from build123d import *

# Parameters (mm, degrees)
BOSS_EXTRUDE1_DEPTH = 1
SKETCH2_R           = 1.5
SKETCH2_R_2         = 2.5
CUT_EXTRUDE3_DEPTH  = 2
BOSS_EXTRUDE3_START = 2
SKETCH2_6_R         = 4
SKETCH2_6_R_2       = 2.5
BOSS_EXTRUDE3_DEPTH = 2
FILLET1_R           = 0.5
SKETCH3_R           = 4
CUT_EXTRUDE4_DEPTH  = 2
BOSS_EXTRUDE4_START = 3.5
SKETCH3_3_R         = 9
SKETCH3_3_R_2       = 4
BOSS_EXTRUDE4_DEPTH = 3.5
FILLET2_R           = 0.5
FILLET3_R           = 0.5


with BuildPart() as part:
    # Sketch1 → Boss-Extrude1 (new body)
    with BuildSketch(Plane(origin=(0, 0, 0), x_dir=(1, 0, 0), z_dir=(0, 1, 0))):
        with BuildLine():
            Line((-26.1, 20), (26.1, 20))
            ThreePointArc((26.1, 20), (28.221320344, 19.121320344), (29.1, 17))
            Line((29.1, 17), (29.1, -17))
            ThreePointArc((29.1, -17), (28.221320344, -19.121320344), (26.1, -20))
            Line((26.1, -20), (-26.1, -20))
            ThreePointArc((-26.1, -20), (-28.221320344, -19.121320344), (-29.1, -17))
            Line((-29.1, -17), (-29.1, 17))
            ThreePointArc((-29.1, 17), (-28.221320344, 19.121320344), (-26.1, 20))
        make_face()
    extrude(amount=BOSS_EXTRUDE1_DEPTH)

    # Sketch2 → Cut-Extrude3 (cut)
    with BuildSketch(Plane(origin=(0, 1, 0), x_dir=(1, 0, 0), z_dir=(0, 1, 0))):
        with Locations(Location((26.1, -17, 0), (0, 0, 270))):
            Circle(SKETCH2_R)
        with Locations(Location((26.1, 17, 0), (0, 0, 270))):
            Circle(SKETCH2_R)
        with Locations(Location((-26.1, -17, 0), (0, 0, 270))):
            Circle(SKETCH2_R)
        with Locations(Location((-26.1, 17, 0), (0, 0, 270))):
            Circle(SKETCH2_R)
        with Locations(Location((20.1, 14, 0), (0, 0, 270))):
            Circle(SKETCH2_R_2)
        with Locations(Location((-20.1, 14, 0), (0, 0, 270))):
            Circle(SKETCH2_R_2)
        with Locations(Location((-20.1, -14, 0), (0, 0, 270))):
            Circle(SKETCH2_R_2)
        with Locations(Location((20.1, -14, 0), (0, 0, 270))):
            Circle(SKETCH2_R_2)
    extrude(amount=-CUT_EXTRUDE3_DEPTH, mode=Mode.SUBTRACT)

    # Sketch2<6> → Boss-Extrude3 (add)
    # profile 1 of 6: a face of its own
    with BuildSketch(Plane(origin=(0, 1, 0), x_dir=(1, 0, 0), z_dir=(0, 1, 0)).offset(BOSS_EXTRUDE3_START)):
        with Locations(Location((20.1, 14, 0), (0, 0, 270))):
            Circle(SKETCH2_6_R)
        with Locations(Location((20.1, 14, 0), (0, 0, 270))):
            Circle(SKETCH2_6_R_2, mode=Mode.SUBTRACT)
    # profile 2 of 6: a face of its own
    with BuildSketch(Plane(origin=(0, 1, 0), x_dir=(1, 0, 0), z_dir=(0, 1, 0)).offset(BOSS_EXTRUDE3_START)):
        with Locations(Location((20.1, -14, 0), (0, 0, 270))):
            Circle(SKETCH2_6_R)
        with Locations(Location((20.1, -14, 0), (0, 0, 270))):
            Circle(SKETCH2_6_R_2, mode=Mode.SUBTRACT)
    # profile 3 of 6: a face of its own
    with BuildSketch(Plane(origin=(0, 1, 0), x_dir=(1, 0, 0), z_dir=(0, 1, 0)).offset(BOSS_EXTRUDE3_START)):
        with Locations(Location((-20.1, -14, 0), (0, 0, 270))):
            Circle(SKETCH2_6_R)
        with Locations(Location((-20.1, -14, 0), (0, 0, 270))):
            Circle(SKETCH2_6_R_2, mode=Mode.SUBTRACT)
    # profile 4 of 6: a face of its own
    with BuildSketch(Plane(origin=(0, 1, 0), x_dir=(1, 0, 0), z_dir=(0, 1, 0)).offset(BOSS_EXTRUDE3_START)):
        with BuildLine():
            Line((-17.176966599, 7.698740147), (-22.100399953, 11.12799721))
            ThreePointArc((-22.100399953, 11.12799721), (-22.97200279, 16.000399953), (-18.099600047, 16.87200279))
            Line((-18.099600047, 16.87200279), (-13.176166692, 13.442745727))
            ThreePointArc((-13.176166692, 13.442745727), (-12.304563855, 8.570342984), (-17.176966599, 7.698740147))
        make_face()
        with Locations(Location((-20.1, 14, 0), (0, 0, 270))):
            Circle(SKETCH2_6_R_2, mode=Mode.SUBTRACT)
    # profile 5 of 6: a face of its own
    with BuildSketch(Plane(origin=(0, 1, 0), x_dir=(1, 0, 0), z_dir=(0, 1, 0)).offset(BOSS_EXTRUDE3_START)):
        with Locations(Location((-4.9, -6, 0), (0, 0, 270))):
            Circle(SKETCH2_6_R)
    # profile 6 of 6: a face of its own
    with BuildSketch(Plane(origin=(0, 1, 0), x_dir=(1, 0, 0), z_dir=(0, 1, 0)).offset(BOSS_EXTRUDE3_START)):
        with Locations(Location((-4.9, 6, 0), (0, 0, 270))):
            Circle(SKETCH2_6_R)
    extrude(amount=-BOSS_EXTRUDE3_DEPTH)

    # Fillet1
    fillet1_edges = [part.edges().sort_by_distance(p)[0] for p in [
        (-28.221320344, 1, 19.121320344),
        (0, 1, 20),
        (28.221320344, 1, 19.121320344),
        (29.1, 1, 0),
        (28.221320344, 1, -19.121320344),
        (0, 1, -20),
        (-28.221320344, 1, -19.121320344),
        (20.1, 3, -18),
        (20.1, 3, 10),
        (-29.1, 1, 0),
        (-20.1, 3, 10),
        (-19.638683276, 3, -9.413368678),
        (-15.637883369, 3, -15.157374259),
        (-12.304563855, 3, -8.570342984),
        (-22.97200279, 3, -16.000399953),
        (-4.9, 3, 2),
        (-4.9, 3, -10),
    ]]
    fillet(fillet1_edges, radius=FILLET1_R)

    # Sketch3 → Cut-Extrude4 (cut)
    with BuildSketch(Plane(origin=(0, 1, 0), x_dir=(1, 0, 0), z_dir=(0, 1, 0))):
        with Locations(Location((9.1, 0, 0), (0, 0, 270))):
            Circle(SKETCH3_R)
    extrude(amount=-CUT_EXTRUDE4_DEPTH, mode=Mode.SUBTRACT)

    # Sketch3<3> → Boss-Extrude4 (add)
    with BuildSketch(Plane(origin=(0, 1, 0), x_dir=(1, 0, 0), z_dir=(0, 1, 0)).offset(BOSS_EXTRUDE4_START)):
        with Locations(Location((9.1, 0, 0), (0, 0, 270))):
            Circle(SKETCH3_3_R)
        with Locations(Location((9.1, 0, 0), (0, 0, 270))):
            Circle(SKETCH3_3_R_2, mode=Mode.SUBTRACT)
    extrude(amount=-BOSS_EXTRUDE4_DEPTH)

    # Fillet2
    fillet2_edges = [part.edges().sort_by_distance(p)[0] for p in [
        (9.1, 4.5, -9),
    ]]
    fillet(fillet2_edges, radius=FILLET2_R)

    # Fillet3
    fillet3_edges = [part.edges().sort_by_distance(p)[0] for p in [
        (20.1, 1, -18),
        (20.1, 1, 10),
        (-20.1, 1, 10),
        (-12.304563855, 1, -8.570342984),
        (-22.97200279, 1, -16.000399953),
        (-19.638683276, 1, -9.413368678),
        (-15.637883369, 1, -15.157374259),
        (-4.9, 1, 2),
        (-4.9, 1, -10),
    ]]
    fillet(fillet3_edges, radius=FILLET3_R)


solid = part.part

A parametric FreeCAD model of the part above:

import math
import FreeCAD as App
import Part
import Sketcher
from FreeCAD import Vector


def edges_at(feature, points):
    """Names of the edges that pass closest to the given points."""
    edges = feature.Shape.Edges
    near = lambda p: min(range(len(edges)), key=lambda i: edges[i].distToShape(Part.Vertex(*p))[0])
    return sorted({f"Edge{near(p) + 1}" for p in points})

doc = App.newDocument("Part")
body = doc.addObject("PartDesign::Body", "Body")

# Sketch on XZ plane
sketch1 = body.newObject("Sketcher::SketchObject", "Sketch")
sketch1.AttachmentSupport = (doc.getObject("XZ_Plane"), [""])
sketch1.MapMode = "FlatFace"
sketch1.addGeometry([
    Part.LineSegment(Vector(26.1, -20, 0), Vector(-26.1, -20, 0)),  # 0
    Part.ArcOfCircle(Part.Circle(Vector(-26.1, -17, 0), Vector(0, 0, 1), 3), math.radians(180), math.radians(270)),  # 1
    Part.LineSegment(Vector(-29.1, -17, 0), Vector(-29.1, 17, 0)),  # 2
    Part.ArcOfCircle(Part.Circle(Vector(-26.1, 17, 0), Vector(0, 0, 1), 3), math.radians(90), math.radians(180)),  # 3
    Part.LineSegment(Vector(-26.1, 20, 0), Vector(26.1, 20, 0)),  # 4
    Part.ArcOfCircle(Part.Circle(Vector(26.1, 17, 0), Vector(0, 0, 1), 3), math.radians(0), math.radians(90)),  # 5
    Part.LineSegment(Vector(29.1, 17, 0), Vector(29.1, -17, 0)),  # 6
    Part.ArcOfCircle(Part.Circle(Vector(26.1, -17, 0), Vector(0, 0, 1), 3), math.radians(-90), math.radians(0)),  # 7
], False)
sketch1.addConstraint([
    Sketcher.Constraint("Tangent", 0, 2, 1, 2),
    Sketcher.Constraint("Tangent", 1, 1, 2, 1),
    Sketcher.Constraint("Tangent", 2, 2, 3, 2),
    Sketcher.Constraint("Tangent", 3, 1, 4, 1),
    Sketcher.Constraint("Tangent", 4, 2, 5, 2),
    Sketcher.Constraint("Tangent", 5, 1, 6, 1),
    Sketcher.Constraint("Tangent", 6, 2, 7, 2),
    Sketcher.Constraint("Tangent", 7, 1, 0, 1),
    Sketcher.Constraint("Horizontal", 0),
    Sketcher.Constraint("Vertical", 2),
    Sketcher.Constraint("Horizontal", 4),
    Sketcher.Constraint("Vertical", 6),
    Sketcher.Constraint("Equal", 1, 3),
    Sketcher.Constraint("Equal", 3, 5),
    Sketcher.Constraint("Equal", 5, 7),
    Sketcher.Constraint("Symmetric", 1, 3, 5, 3, -1, 1),
    Sketcher.Constraint("Radius", 1, 3.0),
    Sketcher.Constraint("DistanceY", 2, 1, 2, 2, 34.0),
    Sketcher.Constraint("DistanceX", 0, 2, 0, 1, 52.2),
])
pad1 = body.newObject("PartDesign::Pad", "Pad")
pad1.Profile = sketch1
pad1.Length = 1
pad1.Reversed = True

# Sketch on XZ plane
sketch2 = body.newObject("Sketcher::SketchObject", "Sketch001")
sketch2.AttachmentSupport = (doc.getObject("XZ_Plane"), [""])
sketch2.MapMode = "FlatFace"
sketch2.AttachmentOffset = App.Placement(Vector(0, 0, -1), App.Rotation())
sketch2.addGeometry([
    Part.Circle(Vector(26.1, 17, 0), Vector(0, 0, 1), 1.5),  # 0
    Part.Circle(Vector(26.1, -17, 0), Vector(0, 0, 1), 1.5),  # 1
    Part.Circle(Vector(-26.1, 17, 0), Vector(0, 0, 1), 1.5),  # 2
    Part.Circle(Vector(-26.1, -17, 0), Vector(0, 0, 1), 1.5),  # 3
    Part.Circle(Vector(20.1, -14, 0), Vector(0, 0, 1), 2.5),  # 4
    Part.Circle(Vector(-20.1, -14, 0), Vector(0, 0, 1), 2.5),  # 5
    Part.Circle(Vector(-20.1, 14, 0), Vector(0, 0, 1), 2.5),  # 6
    Part.Circle(Vector(20.1, 14, 0), Vector(0, 0, 1), 2.5),  # 7
], False)
sketch2.addConstraint([
    Sketcher.Constraint("Equal", 0, 1),
    Sketcher.Constraint("Equal", 1, 2),
    Sketcher.Constraint("Equal", 2, 3),
    Sketcher.Constraint("Equal", 4, 5),
    Sketcher.Constraint("Equal", 5, 6),
    Sketcher.Constraint("Equal", 6, 7),
    Sketcher.Constraint("Symmetric", 1, 3, 2, 3, -1, 1),
    Sketcher.Constraint("Symmetric", 0, 3, 3, 3, -1, 1),
    Sketcher.Constraint("Symmetric", 4, 3, 6, 3, -1, 1),
    Sketcher.Constraint("Symmetric", 5, 3, 7, 3, -1, 1),
    Sketcher.Constraint("Symmetric", 0, 3, 2, 3, -2),
    Sketcher.Constraint("Symmetric", 4, 3, 5, 3, -2),
    Sketcher.Constraint("Diameter", 0, 3.0),
    Sketcher.Constraint("Diameter", 4, 5.0),
    Sketcher.Constraint("DistanceY", -1, 1, 0, 3, 17.0),
    Sketcher.Constraint("DistanceY", 4, 3, -1, 1, 14.0),
    Sketcher.Constraint("DistanceX", 4, 3, 1, 3, 6.0),
    Sketcher.Constraint("DistanceX", -1, 1, 0, 3, 26.1),
])
pocket1 = body.newObject("PartDesign::Pocket", "Pocket")
pocket1.Profile = sketch2
pocket1.Length = 2
pocket1.Reversed = True

# Sketch on XZ plane
sketch3 = body.newObject("Sketcher::SketchObject", "Sketch002")
sketch3.AttachmentSupport = (doc.getObject("XZ_Plane"), [""])
sketch3.MapMode = "FlatFace"
sketch3.AttachmentOffset = App.Placement(Vector(0, 0, -3), App.Rotation())
sketch3.addGeometry([
    Part.Circle(Vector(20.1, -14, 0), Vector(0, 0, 1), 4),  # 0
    Part.Circle(Vector(20.1, -14, 0), Vector(0, 0, 1), 2.5),  # 1
    Part.Circle(Vector(20.1, 14, 0), Vector(0, 0, 1), 4),  # 2
    Part.Circle(Vector(20.1, 14, 0), Vector(0, 0, 1), 2.5),  # 3
    Part.Circle(Vector(-20.1, 14, 0), Vector(0, 0, 1), 4),  # 4
    Part.Circle(Vector(-20.1, 14, 0), Vector(0, 0, 1), 2.5),  # 5
    Part.LineSegment(Vector(-22.1, -11.1, 0), Vector(-17.2, -7.7, 0)),  # 6
    Part.ArcOfCircle(Part.Circle(Vector(-15.2, -10.6, 0), Vector(0, 0, 1), 3.5), math.radians(-55), math.radians(125)),  # 7
    Part.LineSegment(Vector(-13.2, -13.4, 0), Vector(-18.1, -16.9, 0)),  # 8
    Part.ArcOfCircle(Part.Circle(Vector(-20.1, -14, 0), Vector(0, 0, 1), 3.5), math.radians(125), math.radians(305)),  # 9
    Part.Circle(Vector(-20.1, -14, 0), Vector(0, 0, 1), 2.5),  # 10
    Part.Circle(Vector(-4.9, 6, 0), Vector(0, 0, 1), 4),  # 11
    Part.Circle(Vector(-4.9, -6, 0), Vector(0, 0, 1), 4),  # 12
], False)
sketch3.addConstraint([
    Sketcher.Constraint("Tangent", 6, 2, 7, 2),
    Sketcher.Constraint("Tangent", 7, 1, 8, 1),
    Sketcher.Constraint("Tangent", 8, 2, 9, 2),
    Sketcher.Constraint("Tangent", 9, 1, 6, 1),
    Sketcher.Constraint("Coincident", 1, 3, 0, 3),
    Sketcher.Constraint("Coincident", 3, 3, 2, 3),
    Sketcher.Constraint("Coincident", 5, 3, 4, 3),
    Sketcher.Constraint("Coincident", 10, 3, 9, 3),
    Sketcher.Constraint("Equal", 0, 2),
    Sketcher.Constraint("Equal", 1, 3),
    Sketcher.Constraint("Equal", 2, 4),
    Sketcher.Constraint("Equal", 3, 5),
    Sketcher.Constraint("Equal", 7, 9),
    Sketcher.Constraint("Equal", 5, 10),
    Sketcher.Constraint("Equal", 4, 11),
    Sketcher.Constraint("Equal", 11, 12),
    Sketcher.Constraint("Symmetric", 0, 3, 4, 3, -1, 1),
    Sketcher.Constraint("Symmetric", 2, 3, 9, 3, -1, 1),
    Sketcher.Constraint("Symmetric", 2, 3, 4, 3, -2),
    Sketcher.Constraint("Symmetric", 11, 3, 12, 3, -1),
    Sketcher.Constraint("Diameter", 0, 8.0),
    Sketcher.Constraint("Diameter", 1, 5.0),
    Sketcher.Constraint("Radius", 7, 3.5),
    Sketcher.Constraint("Distance", 6, 6.0),
    Sketcher.Constraint("DistanceY", 0, 3, -1, 1, 14.0),
    Sketcher.Constraint("DistanceY", -1, 1, 11, 3, 6.0),
    Sketcher.Constraint("DistanceX", -1, 1, 0, 3, 20.1),
    Sketcher.Constraint("DistanceX", 11, 3, -1, 1, 4.9),
    Sketcher.Constraint("DistanceX", 8, 2, -1, 1, 18.0996),
])
pad2 = body.newObject("PartDesign::Pad", "Pad001")
pad2.Profile = sketch3
pad2.Length = 2
doc.recompute()

fillet = body.newObject("PartDesign::Fillet", "Fillet")
fillet.Base = (pad2, edges_at(pad2, [
    (-28.221, 1, 19.121),
    (0, 1, 20),
    (28.221, 1, 19.121),
    (29.1, 1, 0),
    (28.221, 1, -19.121),
    (0, 1, -20),
    (-28.221, 1, -19.121),
    (20.1, 3, -18),
    (20.1, 3, 10),
    (-29.1, 1, 0),
    (-20.1, 3, 10),
    (-19.639, 3, -9.413),
    (-15.638, 3, -15.157),
    (-12.305, 3, -8.57),
    (-22.972, 3, -16),
    (-4.9, 3, 2),
    (-4.9, 3, -10),
]))
fillet.Radius = 0.5

# Sketch on XZ plane
sketch4 = body.newObject("Sketcher::SketchObject", "Sketch003")
sketch4.AttachmentSupport = (doc.getObject("XZ_Plane"), [""])
sketch4.MapMode = "FlatFace"
sketch4.AttachmentOffset = App.Placement(Vector(0, 0, -1), App.Rotation())
sketch4.addGeometry(Part.Circle(Vector(9.1, 0, 0), Vector(0, 0, 1), 4), False)
sketch4.addConstraint([
    Sketcher.Constraint("PointOnObject", 0, 3, -1),
    Sketcher.Constraint("Diameter", 0, 8.0),
    Sketcher.Constraint("DistanceX", -1, 1, 0, 3, 9.1),
])
pocket2 = body.newObject("PartDesign::Pocket", "Pocket001")
pocket2.Profile = sketch4
pocket2.Length = 2
pocket2.Reversed = True

# Sketch on XZ plane
sketch5 = body.newObject("Sketcher::SketchObject", "Sketch004")
sketch5.AttachmentSupport = (doc.getObject("XZ_Plane"), [""])
sketch5.MapMode = "FlatFace"
sketch5.AttachmentOffset = App.Placement(Vector(0, 0, -4.5), App.Rotation())
sketch5.addGeometry([
    Part.Circle(Vector(9.1, 0, 0), Vector(0, 0, 1), 9),
    Part.Circle(Vector(9.1, 0, 0), Vector(0, 0, 1), 4),
], False)
sketch5.addConstraint([
    Sketcher.Constraint("Coincident", 1, 3, 0, 3),
    Sketcher.Constraint("PointOnObject", 0, 3, -1),
    Sketcher.Constraint("Diameter", 0, 18.0),
    Sketcher.Constraint("Diameter", 1, 8.0),
    Sketcher.Constraint("DistanceX", -1, 1, 0, 3, 9.1),
])
pad3 = body.newObject("PartDesign::Pad", "Pad002")
pad3.Profile = sketch5
pad3.Length = 3.5
doc.recompute()

fillet2 = body.newObject("PartDesign::Fillet", "Fillet001")
fillet2.Base = (pad3, edges_at(pad3, [(9.1, 4.5, -9)]))
fillet2.Radius = 0.5
doc.recompute()

fillet3 = body.newObject("PartDesign::Fillet", "Fillet002")
fillet3.Base = (fillet2, edges_at(fillet2, [
    (20.1, 1, -18),
    (20.1, 1, 10),
    (-20.1, 1, 10),
    (-12.305, 1, -8.57),
    (-22.972, 1, -16),
    (-19.639, 1, -9.413),
    (-15.638, 1, -15.157),
    (-4.9, 1, 2),
    (-4.9, 1, -10),
]))
fillet3.Radius = 0.5

doc.recompute()
